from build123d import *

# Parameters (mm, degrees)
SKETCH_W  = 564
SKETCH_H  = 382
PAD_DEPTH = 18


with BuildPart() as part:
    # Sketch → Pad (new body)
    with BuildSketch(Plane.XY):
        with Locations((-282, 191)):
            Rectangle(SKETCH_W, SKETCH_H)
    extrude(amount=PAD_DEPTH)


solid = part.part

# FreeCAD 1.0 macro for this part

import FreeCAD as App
import Part
import Sketcher

doc = App.newDocument("Part")
body = doc.addObject("PartDesign::Body", "Body")

# Sketch on XY plane
sketch1 = doc.addObject("Sketcher::SketchObject", "Sketch")
body.addObject(sketch1)
sketch1.AttachmentSupport = (doc.XY_Plane, [""])
sketch1.MapMode = "FlatFace"
sketch1.addGeometry(Part.LineSegment(App.Vector(-564, 382, 0), App.Vector(-564, 0, 0)), False)
sketch1.addGeometry(Part.LineSegment(App.Vector(-564, 0, 0), App.Vector(0, 0, 0)), False)
sketch1.addGeometry(Part.LineSegment(App.Vector(0, 0, 0), App.Vector(0, 382, 0)), False)
sketch1.addGeometry(Part.LineSegment(App.Vector(0, 382, 0), App.Vector(-564, 382, 0)), False)
sketch1.addConstraint(Sketcher.Constraint("Coincident", 0, 2, 1, 1))
sketch1.addConstraint(Sketcher.Constraint("Coincident", 1, 2, 2, 1))
sketch1.addConstraint(Sketcher.Constraint("Coincident", 2, 2, 3, 1))
sketch1.addConstraint(Sketcher.Constraint("Coincident", 3, 2, 0, 1))
sketch1.addConstraint(Sketcher.Constraint("Vertical", 0))
sketch1.addConstraint(Sketcher.Constraint("Horizontal", 1))
sketch1.addConstraint(Sketcher.Constraint("Vertical", 2))
sketch1.addConstraint(Sketcher.Constraint("Horizontal", 3))
sketch1.addConstraint(Sketcher.Constraint("Coincident", 1, 2, -1, 1))
sketch1.addConstraint(Sketcher.Constraint("DistanceX", 1, 1, 1, 2, 564.0))
sketch1.addConstraint(Sketcher.Constraint("DistanceY", 0, 2, 0, 1, 382.0))
pad1 = doc.addObject("PartDesign::Pad", "Pad")
body.addObject(pad1)
pad1.Profile = sketch1
pad1.Length = 18

doc.recompute()
